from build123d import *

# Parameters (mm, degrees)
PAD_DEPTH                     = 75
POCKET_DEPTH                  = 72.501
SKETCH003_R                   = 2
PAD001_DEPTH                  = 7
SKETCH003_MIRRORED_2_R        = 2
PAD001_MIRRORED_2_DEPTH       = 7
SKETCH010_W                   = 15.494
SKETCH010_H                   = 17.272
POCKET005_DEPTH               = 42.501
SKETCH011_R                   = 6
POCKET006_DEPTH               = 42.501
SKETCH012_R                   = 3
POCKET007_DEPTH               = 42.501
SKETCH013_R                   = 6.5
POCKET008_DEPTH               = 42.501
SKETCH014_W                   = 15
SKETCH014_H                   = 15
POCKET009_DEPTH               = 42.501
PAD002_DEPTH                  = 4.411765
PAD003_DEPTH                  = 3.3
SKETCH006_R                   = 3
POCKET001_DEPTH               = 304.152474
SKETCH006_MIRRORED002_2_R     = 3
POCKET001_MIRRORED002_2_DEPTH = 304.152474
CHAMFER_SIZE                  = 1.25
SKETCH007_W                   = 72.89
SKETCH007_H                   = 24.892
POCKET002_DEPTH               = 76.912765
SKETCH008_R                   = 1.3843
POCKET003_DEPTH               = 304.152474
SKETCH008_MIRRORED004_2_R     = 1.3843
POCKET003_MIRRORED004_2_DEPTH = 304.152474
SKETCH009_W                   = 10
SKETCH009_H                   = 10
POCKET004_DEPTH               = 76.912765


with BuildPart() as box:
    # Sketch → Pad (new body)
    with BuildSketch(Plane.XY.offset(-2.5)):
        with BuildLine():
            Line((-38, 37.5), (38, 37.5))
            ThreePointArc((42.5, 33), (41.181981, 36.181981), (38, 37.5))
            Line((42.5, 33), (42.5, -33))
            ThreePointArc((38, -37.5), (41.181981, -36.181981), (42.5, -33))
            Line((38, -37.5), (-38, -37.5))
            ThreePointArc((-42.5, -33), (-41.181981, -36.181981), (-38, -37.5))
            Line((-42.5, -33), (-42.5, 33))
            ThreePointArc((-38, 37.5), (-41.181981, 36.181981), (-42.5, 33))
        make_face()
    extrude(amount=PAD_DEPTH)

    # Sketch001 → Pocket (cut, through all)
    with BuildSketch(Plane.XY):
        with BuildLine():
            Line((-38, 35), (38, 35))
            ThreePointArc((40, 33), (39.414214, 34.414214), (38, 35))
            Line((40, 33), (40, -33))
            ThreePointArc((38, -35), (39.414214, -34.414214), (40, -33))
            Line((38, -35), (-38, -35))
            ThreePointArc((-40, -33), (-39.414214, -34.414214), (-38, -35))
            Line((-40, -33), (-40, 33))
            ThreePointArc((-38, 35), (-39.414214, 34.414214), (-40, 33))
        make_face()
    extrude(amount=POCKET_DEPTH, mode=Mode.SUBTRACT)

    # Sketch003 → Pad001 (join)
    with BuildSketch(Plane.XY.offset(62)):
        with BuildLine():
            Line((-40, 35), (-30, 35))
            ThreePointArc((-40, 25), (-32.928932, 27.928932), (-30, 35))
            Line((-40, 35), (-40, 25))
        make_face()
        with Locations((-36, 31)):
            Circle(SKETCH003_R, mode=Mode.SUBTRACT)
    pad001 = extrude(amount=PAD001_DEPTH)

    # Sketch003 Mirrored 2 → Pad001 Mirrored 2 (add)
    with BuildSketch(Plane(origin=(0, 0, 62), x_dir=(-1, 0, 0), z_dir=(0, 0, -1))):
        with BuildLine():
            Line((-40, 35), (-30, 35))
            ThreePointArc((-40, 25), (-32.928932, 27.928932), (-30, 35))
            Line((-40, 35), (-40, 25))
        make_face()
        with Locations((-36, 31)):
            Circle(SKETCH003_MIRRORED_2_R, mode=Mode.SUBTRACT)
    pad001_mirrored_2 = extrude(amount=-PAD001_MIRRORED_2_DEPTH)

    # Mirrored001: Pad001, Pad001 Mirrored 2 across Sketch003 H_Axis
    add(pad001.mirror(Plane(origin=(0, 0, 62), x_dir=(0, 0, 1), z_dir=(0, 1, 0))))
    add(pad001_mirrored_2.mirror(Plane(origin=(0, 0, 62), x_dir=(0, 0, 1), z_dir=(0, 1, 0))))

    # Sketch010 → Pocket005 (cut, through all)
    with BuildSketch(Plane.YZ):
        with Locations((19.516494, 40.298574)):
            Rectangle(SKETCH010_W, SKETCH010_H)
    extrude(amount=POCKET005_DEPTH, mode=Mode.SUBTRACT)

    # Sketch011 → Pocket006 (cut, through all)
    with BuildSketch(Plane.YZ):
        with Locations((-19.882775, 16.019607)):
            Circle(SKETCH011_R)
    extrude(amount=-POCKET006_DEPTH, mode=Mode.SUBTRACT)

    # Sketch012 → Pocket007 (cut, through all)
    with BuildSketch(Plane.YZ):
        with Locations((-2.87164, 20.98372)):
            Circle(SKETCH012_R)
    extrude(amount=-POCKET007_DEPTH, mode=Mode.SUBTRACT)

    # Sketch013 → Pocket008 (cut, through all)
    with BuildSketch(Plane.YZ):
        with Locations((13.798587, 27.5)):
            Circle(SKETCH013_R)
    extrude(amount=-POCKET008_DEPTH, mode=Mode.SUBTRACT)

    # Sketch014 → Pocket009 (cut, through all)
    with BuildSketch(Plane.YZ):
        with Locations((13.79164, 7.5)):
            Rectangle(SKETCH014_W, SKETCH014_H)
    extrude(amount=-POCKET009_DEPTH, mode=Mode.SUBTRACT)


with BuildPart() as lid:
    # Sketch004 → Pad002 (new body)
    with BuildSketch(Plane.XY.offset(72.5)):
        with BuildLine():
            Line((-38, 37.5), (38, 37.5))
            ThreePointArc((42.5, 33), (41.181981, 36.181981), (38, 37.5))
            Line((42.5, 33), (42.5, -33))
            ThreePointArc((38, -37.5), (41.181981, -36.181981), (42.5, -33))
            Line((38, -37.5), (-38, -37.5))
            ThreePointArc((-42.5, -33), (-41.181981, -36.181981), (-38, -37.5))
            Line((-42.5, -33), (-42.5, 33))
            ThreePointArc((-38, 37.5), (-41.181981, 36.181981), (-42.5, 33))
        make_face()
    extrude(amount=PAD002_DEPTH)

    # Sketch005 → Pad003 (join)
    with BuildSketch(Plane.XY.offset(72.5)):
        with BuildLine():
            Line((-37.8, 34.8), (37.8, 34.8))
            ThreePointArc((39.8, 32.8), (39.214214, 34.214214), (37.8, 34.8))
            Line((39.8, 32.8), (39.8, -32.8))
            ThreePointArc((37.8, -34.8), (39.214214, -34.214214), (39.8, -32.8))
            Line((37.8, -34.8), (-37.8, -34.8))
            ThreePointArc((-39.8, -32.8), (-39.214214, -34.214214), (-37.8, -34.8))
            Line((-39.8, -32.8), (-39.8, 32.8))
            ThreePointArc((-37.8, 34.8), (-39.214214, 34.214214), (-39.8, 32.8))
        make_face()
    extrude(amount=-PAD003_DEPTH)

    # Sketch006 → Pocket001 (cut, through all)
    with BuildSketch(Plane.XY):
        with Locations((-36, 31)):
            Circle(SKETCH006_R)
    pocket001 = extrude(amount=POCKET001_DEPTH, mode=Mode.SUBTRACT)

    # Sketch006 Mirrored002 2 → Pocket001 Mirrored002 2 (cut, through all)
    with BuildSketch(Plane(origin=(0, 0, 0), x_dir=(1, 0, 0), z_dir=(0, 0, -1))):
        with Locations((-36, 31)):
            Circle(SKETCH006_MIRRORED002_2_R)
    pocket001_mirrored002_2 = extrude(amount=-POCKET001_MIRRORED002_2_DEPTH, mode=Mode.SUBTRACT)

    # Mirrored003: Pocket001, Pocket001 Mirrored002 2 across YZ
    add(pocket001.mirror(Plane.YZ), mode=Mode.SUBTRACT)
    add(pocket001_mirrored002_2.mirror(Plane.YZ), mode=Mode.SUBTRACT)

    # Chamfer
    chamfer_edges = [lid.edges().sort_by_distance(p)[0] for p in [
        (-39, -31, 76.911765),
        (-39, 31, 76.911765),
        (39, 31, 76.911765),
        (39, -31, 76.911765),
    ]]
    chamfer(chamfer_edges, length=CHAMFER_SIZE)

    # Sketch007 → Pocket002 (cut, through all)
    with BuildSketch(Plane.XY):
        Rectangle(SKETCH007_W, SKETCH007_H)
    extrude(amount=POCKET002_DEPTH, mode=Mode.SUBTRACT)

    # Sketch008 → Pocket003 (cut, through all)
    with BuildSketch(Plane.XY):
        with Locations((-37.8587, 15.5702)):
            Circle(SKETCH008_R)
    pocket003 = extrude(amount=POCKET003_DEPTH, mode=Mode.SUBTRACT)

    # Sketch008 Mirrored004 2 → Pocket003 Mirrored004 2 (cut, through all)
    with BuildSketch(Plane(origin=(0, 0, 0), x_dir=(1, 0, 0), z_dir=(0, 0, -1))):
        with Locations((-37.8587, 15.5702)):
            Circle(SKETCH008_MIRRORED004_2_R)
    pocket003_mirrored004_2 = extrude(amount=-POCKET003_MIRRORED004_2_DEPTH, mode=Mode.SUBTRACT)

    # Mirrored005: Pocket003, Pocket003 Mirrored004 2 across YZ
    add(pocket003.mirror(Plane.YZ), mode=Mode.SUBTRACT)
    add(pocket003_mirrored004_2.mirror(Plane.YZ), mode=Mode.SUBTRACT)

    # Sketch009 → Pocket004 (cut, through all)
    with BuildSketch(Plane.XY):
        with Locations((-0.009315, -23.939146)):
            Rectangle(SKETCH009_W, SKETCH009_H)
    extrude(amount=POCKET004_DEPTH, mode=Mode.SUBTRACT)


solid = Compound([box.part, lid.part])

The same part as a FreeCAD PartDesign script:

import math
import FreeCAD as App
import Part
import Sketcher

V = App.Vector
Q = App.Units.Quantity


def edges_at(feature, points):
    """Names of the edges that pass closest to the given points."""
    edges = feature.Shape.Edges
    near = lambda p: min(range(len(edges)), key=lambda i: edges[i].distToShape(Part.Vertex(*p))[0])
    return sorted({f"Edge{near(p) + 1}" for p in points})


def add_polygon(sketch, points):
    """Adds a closed chain of lines whose ends are joined by coincident constraints."""
    first, n = sketch.GeometryCount, len(points)
    for a, b in zip(points, points[1:] + points[:1]):
        sketch.addGeometry(Part.LineSegment(App.Vector(*a, 0), App.Vector(*b, 0)), False)
    for i in range(n):
        sketch.addConstraint(Sketcher.Constraint("Coincident", first + i, 2, first + (i + 1) % n, 1))

doc = App.newDocument("Part")
body = doc.addObject("PartDesign::Body", "Body")

# Sketch on XY plane
sketch1 = body.newObject("Sketcher::SketchObject", "Sketch")
sketch1.AttachmentSupport = (doc.getObject("XY_Plane"), [""])
sketch1.MapMode = "FlatFace"
sketch1.AttachmentOffset = App.Placement(V(0, 0, -2.5), App.Rotation())
sketch1.addGeometry(Part.LineSegment(V(38, 37.5, 0), V(-38, 37.5, 0)), False)
sketch1.addGeometry(Part.ArcOfCircle(Part.Circle(V(-38, 33, 0), V(0, 0, 1), 4.5), math.radians(90), math.radians(180)), False)
sketch1.addGeometry(Part.LineSegment(V(-42.5, 33, 0), V(-42.5, -33, 0)), False)
sketch1.addGeometry(Part.ArcOfCircle(Part.Circle(V(-38, -33, 0), V(0, 0, 1), 4.5), math.radians(180), math.radians(270)), False)
sketch1.addGeometry(Part.LineSegment(V(-38, -37.5, 0), V(38, -37.5, 0)), False)
sketch1.addGeometry(Part.ArcOfCircle(Part.Circle(V(38, -33, 0), V(0, 0, 1), 4.5), math.radians(-90), math.radians(0)), False)
sketch1.addGeometry(Part.LineSegment(V(42.5, -33, 0), V(42.5, 33, 0)), False)
sketch1.addGeometry(Part.ArcOfCircle(Part.Circle(V(38, 33, 0), V(0, 0, 1), 4.5), math.radians(0), math.radians(90)), False)
sketch1.addConstraint(Sketcher.Constraint("Tangent", 0, 2, 1, 1))
sketch1.addConstraint(Sketcher.Constraint("Tangent", 1, 2, 2, 1))
sketch1.addConstraint(Sketcher.Constraint("Tangent", 2, 2, 3, 1))
sketch1.addConstraint(Sketcher.Constraint("Tangent", 3, 2, 4, 1))
sketch1.addConstraint(Sketcher.Constraint("Tangent", 4, 2, 5, 1))
sketch1.addConstraint(Sketcher.Constraint("Tangent", 5, 2, 6, 1))
sketch1.addConstraint(Sketcher.Constraint("Tangent", 6, 2, 7, 1))
sketch1.addConstraint(Sketcher.Constraint("Tangent", 7, 2, 0, 1))
sketch1.addConstraint(Sketcher.Constraint("Horizontal", 0))
sketch1.addConstraint(Sketcher.Constraint("Vertical", 2))
sketch1.addConstraint(Sketcher.Constraint("Horizontal", 4))
sketch1.addConstraint(Sketcher.Constraint("Vertical", 6))
sketch1.addConstraint(Sketcher.Constraint("Equal", 1, 3))
sketch1.addConstraint(Sketcher.Constraint("Equal", 3, 5))
sketch1.addConstraint(Sketcher.Constraint("Equal", 5, 7))
sketch1.addConstraint(Sketcher.Constraint("Symmetric", 1, 3, 5, 3, -1, 1))
sketch1.addConstraint(Sketcher.Constraint("Radius", 1, Q("4.499998 mm")))
sketch1.addConstraint(Sketcher.Constraint("DistanceX", 0, 2, 0, 1, Q("76 mm")))
sketch1.addConstraint(Sketcher.Constraint("DistanceY", 2, 2, 2, 1, Q("66 mm")))
pad1 = body.newObject("PartDesign::Pad", "Pad")
pad1.Profile = sketch1
pad1.Length = 75

# Sketch on XY plane
sketch2 = body.newObject("Sketcher::SketchObject", "Sketch001")
sketch2.AttachmentSupport = (doc.getObject("XY_Plane"), [""])
sketch2.MapMode = "FlatFace"
sketch2.addGeometry(Part.LineSegment(V(38, 35, 0), V(-38, 35, 0)), False)
sketch2.addGeometry(Part.ArcOfCircle(Part.Circle(V(-38, 33, 0), V(0, 0, 1), 2), math.radians(90), math.radians(180)), False)
sketch2.addGeometry(Part.LineSegment(V(-40, 33, 0), V(-40, -33, 0)), False)
sketch2.addGeometry(Part.ArcOfCircle(Part.Circle(V(-38, -33, 0), V(0, 0, 1), 2), math.radians(180), math.radians(270)), False)
sketch2.addGeometry(Part.LineSegment(V(-38, -35, 0), V(38, -35, 0)), False)
sketch2.addGeometry(Part.ArcOfCircle(Part.Circle(V(38, -33, 0), V(0, 0, 1), 2), math.radians(-90), math.radians(0)), False)
sketch2.addGeometry(Part.LineSegment(V(40, -33, 0), V(40, 33, 0)), False)
sketch2.addGeometry(Part.ArcOfCircle(Part.Circle(V(38, 33, 0), V(0, 0, 1), 2), math.radians(0), math.radians(90)), False)
sketch2.addConstraint(Sketcher.Constraint("Tangent", 0, 2, 1, 1))
sketch2.addConstraint(Sketcher.Constraint("Tangent", 1, 2, 2, 1))
sketch2.addConstraint(Sketcher.Constraint("Tangent", 2, 2, 3, 1))
sketch2.addConstraint(Sketcher.Constraint("Tangent", 3, 2, 4, 1))
sketch2.addConstraint(Sketcher.Constraint("Tangent", 4, 2, 5, 1))
sketch2.addConstraint(Sketcher.Constraint("Tangent", 5, 2, 6, 1))
sketch2.addConstraint(Sketcher.Constraint("Tangent", 6, 2, 7, 1))
sketch2.addConstraint(Sketcher.Constraint("Tangent", 7, 2, 0, 1))
sketch2.addConstraint(Sketcher.Constraint("Horizontal", 0))
sketch2.addConstraint(Sketcher.Constraint("Vertical", 2))
sketch2.addConstraint(Sketcher.Constraint("Horizontal", 4))
sketch2.addConstraint(Sketcher.Constraint("Vertical", 6))
sketch2.addConstraint(Sketcher.Constraint("Equal", 1, 3))
sketch2.addConstraint(Sketcher.Constraint("Equal", 3, 5))
sketch2.addConstraint(Sketcher.Constraint("Equal", 5, 7))
sketch2.addConstraint(Sketcher.Constraint("Symmetric", 1, 3, 5, 3, -1, 1))
sketch2.addConstraint(Sketcher.Constraint("Radius", 1, Q("1.999999 mm")))
sketch2.addConstraint(Sketcher.Constraint("DistanceX", 0, 2, 0, 1, Q("76 mm")))
sketch2.addConstraint(Sketcher.Constraint("DistanceY", 2, 2, 2, 1, Q("66 mm")))
pocket1 = body.newObject("PartDesign::Pocket", "Pocket")
pocket1.Profile = sketch2
pocket1.Type = "ThroughAll"
pocket1.Reversed = True

# Sketch on XY plane
sketch3 = body.newObject("Sketcher::SketchObject", "Sketch002")
sketch3.AttachmentSupport = (doc.getObject("XY_Plane"), [""])
sketch3.MapMode = "FlatFace"
sketch3.AttachmentOffset = App.Placement(V(0, 0, 62), App.Rotation())
sketch3.addGeometry(Part.LineSegment(V(-30, 35, 0), V(-40, 35, 0)), False)
sketch3.addGeometry(Part.LineSegment(V(-40, 35, 0), V(-40, 25, 0)), False)
sketch3.addGeometry(Part.ArcOfCircle(Part.Circle(V(-40, 35, 0), V(0, 0, 1), 10), math.radians(-90), math.radians(0)), False)
sketch3.addGeometry(Part.Circle(V(-36, 31, 0), V(0, 0, 1), 2), False)
sketch3.addConstraint(Sketcher.Constraint("Coincident", 0, 2, 1, 1))
sketch3.addConstraint(Sketcher.Constraint("Coincident", 1, 2, 2, 1))
sketch3.addConstraint(Sketcher.Constraint("Coincident", 2, 2, 0, 1))
sketch3.addConstraint(Sketcher.Constraint("Horizontal", 0))
sketch3.addConstraint(Sketcher.Constraint("Vertical", 1))
sketch3.addConstraint(Sketcher.Constraint("Coincident", 0, 2, 2, 3))
sketch3.addConstraint(Sketcher.Constraint("Diameter", 3, Q("4 mm")))
sketch3.addConstraint(Sketcher.Constraint("Radius", 2, Q("9.999999 mm")))
sketch3.addConstraint(Sketcher.Constraint("DistanceX", 2, 3, -1, 1, Q("39.999999 mm")))
sketch3.addConstraint(Sketcher.Constraint("DistanceY", -1, 1, 2, 3, Q("34.999999 mm")))
sketch3.addConstraint(Sketcher.Constraint("DistanceX", 3, 3, -1, 1, Q("36 mm")))
sketch3.addConstraint(Sketcher.Constraint("DistanceY", -1, 1, 3, 3, Q("31 mm")))
pad2 = body.newObject("PartDesign::Pad", "Pad001")
pad2.Profile = sketch3
pad2.Length = 7

# Sketch on XY plane
sketch4 = body.newObject("Sketcher::SketchObject", "Sketch003")
sketch4.AttachmentSupport = (doc.getObject("XY_Plane"), [""])
sketch4.MapMode = "FlatFace"
sketch4.AttachmentOffset = App.Placement(V(0, 0, 62), App.Rotation())
sketch4.addGeometry(Part.LineSegment(V(30, 35, 0), V(40, 35, 0)), False)
sketch4.addGeometry(Part.LineSegment(V(40, 35, 0), V(40, 25, 0)), False)
sketch4.addGeometry(Part.ArcOfCircle(Part.Circle(V(40, 35, 0), V(0, 0, 1), 10), math.radians(180), math.radians(270)), False)
sketch4.addGeometry(Part.Circle(V(36, 31, 0), V(0, 0, 1), 2), False)
sketch4.addConstraint(Sketcher.Constraint("Coincident", 0, 2, 1, 1))
sketch4.addConstraint(Sketcher.Constraint("Coincident", 1, 2, 2, 2))
sketch4.addConstraint(Sketcher.Constraint("Coincident", 2, 1, 0, 1))
sketch4.addConstraint(Sketcher.Constraint("Horizontal", 0))
sketch4.addConstraint(Sketcher.Constraint("Vertical", 1))
sketch4.addConstraint(Sketcher.Constraint("Coincident", 0, 2, 2, 3))
sketch4.addConstraint(Sketcher.Constraint("Diameter", 3, Q("4 mm")))
sketch4.addConstraint(Sketcher.Constraint("Radius", 2, Q("9.999999 mm")))
sketch4.addConstraint(Sketcher.Constraint("DistanceX", -1, 1, 2, 3, Q("39.999999 mm")))
sketch4.addConstraint(Sketcher.Constraint("DistanceY", -1, 1, 2, 3, Q("34.999999 mm")))
sketch4.addConstraint(Sketcher.Constraint("DistanceX", -1, 1, 3, 3, Q("36 mm")))
sketch4.addConstraint(Sketcher.Constraint("DistanceY", -1, 1, 3, 3, Q("31 mm")))
pad3 = body.newObject("PartDesign::Pad", "Pad002")
pad3.Profile = sketch4
pad3.Length = 7
doc.recompute()

mirrored = body.newObject("PartDesign::Mirrored", "Mirrored")
mirrored.Originals = [pad2, pad3]
mirrored.MirrorPlane = (doc.getObject("XZ_Plane"), [""])
body.Tip = mirrored

# Sketch on YZ plane
sketch5 = body.newObject("Sketcher::SketchObject", "Sketch004")
sketch5.AttachmentSupport = (doc.getObject("YZ_Plane"), [""])
sketch5.MapMode = "FlatFace"
add_polygon(sketch5, [(12, 49), (12, 32), (27, 32), (27, 49)])  # lines 0-3
sketch5.addConstraint(Sketcher.Constraint("Vertical", 0))
sketch5.addConstraint(Sketcher.Constraint("Horizontal", 1))
sketch5.addConstraint(Sketcher.Constraint("Vertical", 2))
sketch5.addConstraint(Sketcher.Constraint("Horizontal", 3))
sketch5.addConstraint(Sketcher.Constraint("DistanceX", 1, 1, 1, 2, Q("15.494 mm")))
sketch5.addConstraint(Sketcher.Constraint("DistanceY", 0, 2, 0, 1, Q("17.272 mm")))
sketch5.addConstraint(Sketcher.Constraint("DistanceX", -1, 1, 0, 2, Q("11.769494 mm")))
sketch5.addConstraint(Sketcher.Constraint("DistanceY", -1, 1, 0, 2, Q("31.662574 mm")))
pocket2 = body.newObject("PartDesign::Pocket", "Pocket001")
pocket2.Profile = sketch5
pocket2.Type = "ThroughAll"
pocket2.Reversed = True

# Sketch on YZ plane
sketch6 = body.newObject("Sketcher::SketchObject", "Sketch005")
sketch6.AttachmentSupport = (doc.getObject("YZ_Plane"), [""])
sketch6.MapMode = "FlatFace"
sketch6.addGeometry(Part.Circle(V(-20, 16, 0), V(0, 0, 1), 6), False)
sketch6.addConstraint(Sketcher.Constraint("Diameter", 0, Q("12 mm")))
sketch6.addConstraint(Sketcher.Constraint("DistanceX", 0, 3, -1, 1, Q("19.882775 mm")))
sketch6.addConstraint(Sketcher.Constraint("DistanceY", -1, 1, 0, 3, Q("16.019607 mm")))
pocket3 = body.newObject("PartDesign::Pocket", "Pocket002")
pocket3.Profile = sketch6
pocket3.Type = "ThroughAll"

# Sketch on YZ plane
sketch7 = body.newObject("Sketcher::SketchObject", "Sketch006")
sketch7.AttachmentSupport = (doc.getObject("YZ_Plane"), [""])
sketch7.MapMode = "FlatFace"
sketch7.addGeometry(Part.Circle(V(-2.9, 21, 0), V(0, 0, 1), 3), False)
sketch7.addConstraint(Sketcher.Constraint("Diameter", 0, Q("6 mm")))
sketch7.addConstraint(Sketcher.Constraint("DistanceX", 0, 3, -1, 1, Q("2.87164 mm")))
sketch7.addConstraint(Sketcher.Constraint("DistanceY", -1, 1, 0, 3, Q("20.98372 mm")))
pocket4 = body.newObject("PartDesign::Pocket", "Pocket003")
pocket4.Profile = sketch7
pocket4.Type = "ThroughAll"

# Sketch on YZ plane
sketch8 = body.newObject("Sketcher::SketchObject", "Sketch007")
sketch8.AttachmentSupport = (doc.getObject("YZ_Plane"), [""])
sketch8.MapMode = "FlatFace"
sketch8.addGeometry(Part.Circle(V(14, 28, 0), V(0, 0, 1), 6), False)
sketch8.addConstraint(Sketcher.Constraint("Diameter", 0, Q("13 mm")))
sketch8.addConstraint(Sketcher.Constraint("DistanceY", -1, 1, 0, 3, Q("27.5 mm")))
sketch8.addConstraint(Sketcher.Constraint("DistanceX", -1, 1, 0, 3, Q("13.798587 mm")))
pocket5 = body.newObject("PartDesign::Pocket", "Pocket004")
pocket5.Profile = sketch8
pocket5.Type = "ThroughAll"

# Sketch on YZ plane
sketch9 = body.newObject("Sketcher::SketchObject", "Sketch008")
sketch9.AttachmentSupport = (doc.getObject("YZ_Plane"), [""])
sketch9.MapMode = "FlatFace"
add_polygon(sketch9, [(6, 15), (6, 0), (21, 0), (21, 15)])  # lines 0-3
sketch9.addConstraint(Sketcher.Constraint("Vertical", 0))
sketch9.addConstraint(Sketcher.Constraint("Horizontal", 1))
sketch9.addConstraint(Sketcher.Constraint("Vertical", 2))
sketch9.addConstraint(Sketcher.Constraint("Horizontal", 3))
sketch9.addConstraint(Sketcher.Constraint("PointOnObject", 0, 2, -1))
sketch9.addConstraint(Sketcher.Constraint("Equal", 3, 0))
sketch9.addConstraint(Sketcher.Constraint("DistanceX", 1, 1, 1, 2, Q("15 mm")))
sketch9.addConstraint(Sketcher.Constraint("DistanceX", -1, 1, 0, 2, Q("6.29164 mm")))
pocket6 = body.newObject("PartDesign::Pocket", "Pocket005")
pocket6.Profile = sketch9
pocket6.Type = "ThroughAll"
body2 = doc.addObject("PartDesign::Body", "Body001")

# Sketch on XY plane
sketch10 = body2.newObject("Sketcher::SketchObject", "Sketch009")
sketch10.AttachmentSupport = (doc.getObject("XY_Plane001"), [""])
sketch10.MapMode = "FlatFace"
sketch10.AttachmentOffset = App.Placement(V(0, 0, 72.5), App.Rotation())
sketch10.addGeometry(Part.LineSegment(V(38, 37.5, 0), V(-38, 37.5, 0)), False)
sketch10.addGeometry(Part.ArcOfCircle(Part.Circle(V(-38, 33, 0), V(0, 0, 1), 4.5), math.radians(90), math.radians(180)), False)
sketch10.addGeometry(Part.LineSegment(V(-42.5, 33, 0), V(-42.5, -33, 0)), False)
sketch10.addGeometry(Part.ArcOfCircle(Part.Circle(V(-38, -33, 0), V(0, 0, 1), 4.5), math.radians(180), math.radians(270)), False)
sketch10.addGeometry(Part.LineSegment(V(-38, -37.5, 0), V(38, -37.5, 0)), False)
sketch10.addGeometry(Part.ArcOfCircle(Part.Circle(V(38, -33, 0), V(0, 0, 1), 4.5), math.radians(-90), math.radians(0)), False)
sketch10.addGeometry(Part.LineSegment(V(42.5, -33, 0), V(42.5, 33, 0)), False)
sketch10.addGeometry(Part.ArcOfCircle(Part.Circle(V(38, 33, 0), V(0, 0, 1), 4.5), math.radians(0), math.radians(90)), False)
sketch10.addConstraint(Sketcher.Constraint("Tangent", 0, 2, 1, 1))
sketch10.addConstraint(Sketcher.Constraint("Tangent", 1, 2, 2, 1))
sketch10.addConstraint(Sketcher.Constraint("Tangent", 2, 2, 3, 1))
sketch10.addConstraint(Sketcher.Constraint("Tangent", 3, 2, 4, 1))
sketch10.addConstraint(Sketcher.Constraint("Tangent", 4, 2, 5, 1))
sketch10.addConstraint(Sketcher.Constraint("Tangent", 5, 2, 6, 1))
sketch10.addConstraint(Sketcher.Constraint("Tangent", 6, 2, 7, 1))
sketch10.addConstraint(Sketcher.Constraint("Tangent", 7, 2, 0, 1))
sketch10.addConstraint(Sketcher.Constraint("Horizontal", 0))
sketch10.addConstraint(Sketcher.Constraint("Vertical", 2))
sketch10.addConstraint(Sketcher.Constraint("Horizontal", 4))
sketch10.addConstraint(Sketcher.Constraint("Vertical", 6))
sketch10.addConstraint(Sketcher.Constraint("Equal", 1, 3))
sketch10.addConstraint(Sketcher.Constraint("Equal", 3, 5))
sketch10.addConstraint(Sketcher.Constraint("Equal", 5, 7))
sketch10.addConstraint(Sketcher.Constraint("Symmetric", 1, 3, 5, 3, -1, 1))
sketch10.addConstraint(Sketcher.Constraint("Radius", 1, Q("4.499998 mm")))
sketch10.addConstraint(Sketcher.Constraint("DistanceX", 0, 2, 0, 1, Q("76 mm")))
sketch10.addConstraint(Sketcher.Constraint("DistanceY", 2, 2, 2, 1, Q("66 mm")))
pad4 = body2.newObject("PartDesign::Pad", "Pad003")
pad4.Profile = sketch10
pad4.Length = 4.411765

# Sketch on XY plane
sketch11 = body2.newObject("Sketcher::SketchObject", "Sketch010")
sketch11.AttachmentSupport = (doc.getObject("XY_Plane001"), [""])
sketch11.MapMode = "FlatFace"
sketch11.AttachmentOffset = App.Placement(V(0, 0, 72.5), App.Rotation())
sketch11.addGeometry(Part.LineSegment(V(37.8, 34.8, 0), V(-37.8, 34.8, 0)), False)
sketch11.addGeometry(Part.ArcOfCircle(Part.Circle(V(-37.8, 32.8, 0), V(0, 0, 1), 2), math.radians(90), math.radians(180)), False)
sketch11.addGeometry(Part.LineSegment(V(-39.8, 32.8, 0), V(-39.8, -32.8, 0)), False)
sketch11.addGeometry(Part.ArcOfCircle(Part.Circle(V(-37.8, -32.8, 0), V(0, 0, 1), 2), math.radians(180), math.radians(270)), False)
sketch11.addGeometry(Part.LineSegment(V(-37.8, -34.8, 0), V(37.8, -34.8, 0)), False)
sketch11.addGeometry(Part.ArcOfCircle(Part.Circle(V(37.8, -32.8, 0), V(0, 0, 1), 2), math.radians(-90), math.radians(0)), False)
sketch11.addGeometry(Part.LineSegment(V(39.8, -32.8, 0), V(39.8, 32.8, 0)), False)
sketch11.addGeometry(Part.ArcOfCircle(Part.Circle(V(37.8, 32.8, 0), V(0, 0, 1), 2), math.radians(0), math.radians(90)), False)
sketch11.addConstraint(Sketcher.Constraint("Tangent", 0, 2, 1, 1))
sketch11.addConstraint(Sketcher.Constraint("Tangent", 1, 2, 2, 1))
sketch11.addConstraint(Sketcher.Constraint("Tangent", 2, 2, 3, 1))
sketch11.addConstraint(Sketcher.Constraint("Tangent", 3, 2, 4, 1))
sketch11.addConstraint(Sketcher.Constraint("Tangent", 4, 2, 5, 1))
sketch11.addConstraint(Sketcher.Constraint("Tangent", 5, 2, 6, 1))
sketch11.addConstraint(Sketcher.Constraint("Tangent", 6, 2, 7, 1))
sketch11.addConstraint(Sketcher.Constraint("Tangent", 7, 2, 0, 1))
sketch11.addConstraint(Sketcher.Constraint("Horizontal", 0))
sketch11.addConstraint(Sketcher.Constraint("Vertical", 2))
sketch11.addConstraint(Sketcher.Constraint("Horizontal", 4))
sketch11.addConstraint(Sketcher.Constraint("Vertical", 6))
sketch11.addConstraint(Sketcher.Constraint("Equal", 1, 3))
sketch11.addConstraint(Sketcher.Constraint("Equal", 3, 5))
sketch11.addConstraint(Sketcher.Constraint("Equal", 5, 7))
sketch11.addConstraint(Sketcher.Constraint("Symmetric", 1, 3, 5, 3, -1, 1))
sketch11.addConstraint(Sketcher.Constraint("Radius", 1, Q("1.999999 mm")))
sketch11.addConstraint(Sketcher.Constraint("DistanceX", 0, 2, 0, 1, Q("75.6 mm")))
sketch11.addConstraint(Sketcher.Constraint("DistanceY", 2, 2, 2, 1, Q("65.6 mm")))
pad5 = body2.newObject("PartDesign::Pad", "Pad004")
pad5.Profile = sketch11
pad5.Length = 3.3
pad5.Reversed = True

# Sketch on XY plane
sketch12 = body2.newObject("Sketcher::SketchObject", "Sketch011")
sketch12.AttachmentSupport = (doc.getObject("XY_Plane001"), [""])
sketch12.MapMode = "FlatFace"
sketch12.addGeometry(Part.Circle(V(-36, 31, 0), V(0, 0, 1), 3), False)
sketch12.addConstraint(Sketcher.Constraint("Diameter", 0, Q("6 mm")))
sketch12.addConstraint(Sketcher.Constraint("DistanceX", 0, 3, -1, 1, Q("36 mm")))
sketch12.addConstraint(Sketcher.Constraint("DistanceY", -1, 1, 0, 3, Q("31 mm")))
pocket7 = body2.newObject("PartDesign::Pocket", "Pocket006")
pocket7.Profile = sketch12
pocket7.Type = "ThroughAll"
pocket7.Reversed = True

# Sketch on XY plane
sketch13 = body2.newObject("Sketcher::SketchObject", "Sketch012")
sketch13.AttachmentSupport = (doc.getObject("XY_Plane001"), [""])
sketch13.MapMode = "FlatFace"
sketch13.addGeometry(Part.Circle(V(-36, -31, 0), V(0, 0, 1), 3), False)
sketch13.addConstraint(Sketcher.Constraint("Diameter", 0, Q("6 mm")))
sketch13.addConstraint(Sketcher.Constraint("DistanceX", 0, 3, -1, 1, Q("36 mm")))
sketch13.addConstraint(Sketcher.Constraint("DistanceY", 0, 3, -1, 1, Q("31 mm")))
pocket8 = body2.newObject("PartDesign::Pocket", "Pocket007")
pocket8.Profile = sketch13
pocket8.Type = "ThroughAll"
pocket8.Reversed = True
doc.recompute()

mirrored2 = body2.newObject("PartDesign::Mirrored", "Mirrored001")
mirrored2.Originals = [pocket7, pocket8]
mirrored2.MirrorPlane = (doc.getObject("YZ_Plane001"), [""])
body2.Tip = mirrored2
doc.recompute()

chamfer = body2.newObject("PartDesign::Chamfer", "Chamfer")
chamfer.Base = (mirrored2, edges_at(mirrored2, [
    (-39, -31, 76.912),
    (-39, 31, 76.912),
    (39, 31, 76.912),
    (39, -31, 76.912),
]))
chamfer.Size = 1.25

# Sketch on XY plane
sketch14 = body2.newObject("Sketcher::SketchObject", "Sketch013")
sketch14.AttachmentSupport = (doc.getObject("XY_Plane001"), [""])
sketch14.MapMode = "FlatFace"
add_polygon(sketch14, [(-36, 12), (-36, -12), (36, -12), (36, 12)])  # lines 0-3
sketch14.addConstraint(Sketcher.Constraint("Vertical", 0))
sketch14.addConstraint(Sketcher.Constraint("Horizontal", 1))
sketch14.addConstraint(Sketcher.Constraint("Vertical", 2))
sketch14.addConstraint(Sketcher.Constraint("Horizontal", 3))
sketch14.addConstraint(Sketcher.Constraint("Symmetric", 0, 2, 2, 2, -1, 1))
sketch14.addConstraint(Sketcher.Constraint("DistanceX", 1, 1, 1, 2, Q("72.89 mm")))
sketch14.addConstraint(Sketcher.Constraint("DistanceY", 0, 2, 0, 1, Q("24.892 mm")))
pocket9 = body2.newObject("PartDesign::Pocket", "Pocket008")
pocket9.Profile = sketch14
pocket9.Type = "ThroughAll"
pocket9.Reversed = True

# Sketch on XY plane
sketch15 = body2.newObject("Sketcher::SketchObject", "Sketch014")
sketch15.AttachmentSupport = (doc.getObject("XY_Plane001"), [""])
sketch15.MapMode = "FlatFace"
sketch15.addGeometry(Part.Circle(V(-37.9, 15.6, 0), V(0, 0, 1), 1.4), False)
sketch15.addConstraint(Sketcher.Constraint("Diameter", 0, Q("2.7686 mm")))
sketch15.addConstraint(Sketcher.Constraint("DistanceX", 0, 3, -1, 1, Q("37.8587 mm")))
sketch15.addConstraint(Sketcher.Constraint("DistanceY", -1, 1, 0, 3, Q("15.5702 mm")))
pocket10 = body2.newObject("PartDesign::Pocket", "Pocket009")
pocket10.Profile = sketch15
pocket10.Type = "ThroughAll"
pocket10.Reversed = True

# Sketch on XY plane
sketch16 = body2.newObject("Sketcher::SketchObject", "Sketch015")
sketch16.AttachmentSupport = (doc.getObject("XY_Plane001"), [""])
sketch16.MapMode = "FlatFace"
sketch16.addGeometry(Part.Circle(V(-37.9, -15.6, 0), V(0, 0, 1), 1.4), False)
sketch16.addConstraint(Sketcher.Constraint("Diameter", 0, Q("2.7686 mm")))
sketch16.addConstraint(Sketcher.Constraint("DistanceX", 0, 3, -1, 1, Q("37.8587 mm")))
sketch16.addConstraint(Sketcher.Constraint("DistanceY", 0, 3, -1, 1, Q("15.5702 mm")))
pocket11 = body2.newObject("PartDesign::Pocket", "Pocket010")
pocket11.Profile = sketch16
pocket11.Type = "ThroughAll"
pocket11.Reversed = True
doc.recompute()

mirrored3 = body2.newObject("PartDesign::Mirrored", "Mirrored002")
mirrored3.Originals = [pocket10, pocket11]
mirrored3.MirrorPlane = (doc.getObject("YZ_Plane001"), [""])
body2.Tip = mirrored3

# Sketch on XY plane
sketch17 = body2.newObject("Sketcher::SketchObject", "Sketch016")
sketch17.AttachmentSupport = (doc.getObject("XY_Plane001"), [""])
sketch17.MapMode = "FlatFace"
add_polygon(sketch17, [(-5, -19), (-5, -29), (5, -29), (5, -19)])  # lines 0-3
sketch17.addConstraint(Sketcher.Constraint("Vertical", 0))
sketch17.addConstraint(Sketcher.Constraint("Horizontal", 1))
sketch17.addConstraint(Sketcher.Constraint("Vertical", 2))
sketch17.addConstraint(Sketcher.Constraint("Horizontal", 3))
sketch17.addConstraint(Sketcher.Constraint("Equal", 3, 0))
sketch17.addConstraint(Sketcher.Constraint("DistanceX", 1, 1, 1, 2, Q("10 mm")))
sketch17.addConstraint(Sketcher.Constraint("DistanceX", 0, 2, -1, 1, Q("5.009315 mm")))
sketch17.addConstraint(Sketcher.Constraint("DistanceY", 0, 2, -1, 1, Q("28.939146 mm")))
pocket12 = body2.newObject("PartDesign::Pocket", "Pocket011")
pocket12.Profile = sketch17
pocket12.Type = "ThroughAll"
pocket12.Reversed = True

doc.recompute()
